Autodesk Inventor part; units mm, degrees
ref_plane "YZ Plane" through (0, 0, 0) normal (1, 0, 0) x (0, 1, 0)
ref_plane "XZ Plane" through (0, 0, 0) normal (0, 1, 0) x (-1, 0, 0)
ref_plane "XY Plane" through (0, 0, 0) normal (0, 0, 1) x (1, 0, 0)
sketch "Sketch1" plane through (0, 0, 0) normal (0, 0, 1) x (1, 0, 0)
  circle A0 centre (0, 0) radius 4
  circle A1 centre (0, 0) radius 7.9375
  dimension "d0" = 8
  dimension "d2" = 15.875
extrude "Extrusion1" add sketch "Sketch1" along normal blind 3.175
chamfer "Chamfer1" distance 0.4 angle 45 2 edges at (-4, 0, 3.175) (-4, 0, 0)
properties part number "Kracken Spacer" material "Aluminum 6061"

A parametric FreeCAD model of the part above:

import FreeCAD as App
import Part
import Sketcher
from FreeCAD import Vector


def edges_at(feature, points):
    """Names of the edges that pass closest to the given points."""
    edges = feature.Shape.Edges
    near = lambda p: min(range(len(edges)), key=lambda i: edges[i].distToShape(Part.Vertex(*p))[0])
    return sorted({f"Edge{near(p) + 1}" for p in points})

doc = App.newDocument("Part")
body = doc.addObject("PartDesign::Body", "Body")

# Sketch on XY plane
sketch1 = body.newObject("Sketcher::SketchObject", "Sketch")
sketch1.AttachmentSupport = (doc.getObject("XY_Plane"), [""])
sketch1.MapMode = "FlatFace"
sketch1.addGeometry([
    Part.Circle(Vector(0, 0, 0), Vector(0, 0, 1), 7.9),
    Part.Circle(Vector(0, 0, 0), Vector(0, 0, 1), 4),
], False)
sketch1.addConstraint([
    Sketcher.Constraint("Coincident", 0, 3, -1, 1),
    Sketcher.Constraint("Coincident", 1, 3, -1, 1),
    Sketcher.Constraint("Diameter", 1, 8.0),
    Sketcher.Constraint("Diameter", 0, 15.875),
])
pad1 = body.newObject("PartDesign::Pad", "Pad")
pad1.Profile = sketch1
pad1.Length = 3.175
doc.recompute()

chamfer = body.newObject("PartDesign::Chamfer", "Chamfer")
chamfer.Base = (pad1, edges_at(pad1, [(-4, 0, 3.175), (-4, 0, 0)]))
chamfer.Size = 0.4

doc.recompute()
